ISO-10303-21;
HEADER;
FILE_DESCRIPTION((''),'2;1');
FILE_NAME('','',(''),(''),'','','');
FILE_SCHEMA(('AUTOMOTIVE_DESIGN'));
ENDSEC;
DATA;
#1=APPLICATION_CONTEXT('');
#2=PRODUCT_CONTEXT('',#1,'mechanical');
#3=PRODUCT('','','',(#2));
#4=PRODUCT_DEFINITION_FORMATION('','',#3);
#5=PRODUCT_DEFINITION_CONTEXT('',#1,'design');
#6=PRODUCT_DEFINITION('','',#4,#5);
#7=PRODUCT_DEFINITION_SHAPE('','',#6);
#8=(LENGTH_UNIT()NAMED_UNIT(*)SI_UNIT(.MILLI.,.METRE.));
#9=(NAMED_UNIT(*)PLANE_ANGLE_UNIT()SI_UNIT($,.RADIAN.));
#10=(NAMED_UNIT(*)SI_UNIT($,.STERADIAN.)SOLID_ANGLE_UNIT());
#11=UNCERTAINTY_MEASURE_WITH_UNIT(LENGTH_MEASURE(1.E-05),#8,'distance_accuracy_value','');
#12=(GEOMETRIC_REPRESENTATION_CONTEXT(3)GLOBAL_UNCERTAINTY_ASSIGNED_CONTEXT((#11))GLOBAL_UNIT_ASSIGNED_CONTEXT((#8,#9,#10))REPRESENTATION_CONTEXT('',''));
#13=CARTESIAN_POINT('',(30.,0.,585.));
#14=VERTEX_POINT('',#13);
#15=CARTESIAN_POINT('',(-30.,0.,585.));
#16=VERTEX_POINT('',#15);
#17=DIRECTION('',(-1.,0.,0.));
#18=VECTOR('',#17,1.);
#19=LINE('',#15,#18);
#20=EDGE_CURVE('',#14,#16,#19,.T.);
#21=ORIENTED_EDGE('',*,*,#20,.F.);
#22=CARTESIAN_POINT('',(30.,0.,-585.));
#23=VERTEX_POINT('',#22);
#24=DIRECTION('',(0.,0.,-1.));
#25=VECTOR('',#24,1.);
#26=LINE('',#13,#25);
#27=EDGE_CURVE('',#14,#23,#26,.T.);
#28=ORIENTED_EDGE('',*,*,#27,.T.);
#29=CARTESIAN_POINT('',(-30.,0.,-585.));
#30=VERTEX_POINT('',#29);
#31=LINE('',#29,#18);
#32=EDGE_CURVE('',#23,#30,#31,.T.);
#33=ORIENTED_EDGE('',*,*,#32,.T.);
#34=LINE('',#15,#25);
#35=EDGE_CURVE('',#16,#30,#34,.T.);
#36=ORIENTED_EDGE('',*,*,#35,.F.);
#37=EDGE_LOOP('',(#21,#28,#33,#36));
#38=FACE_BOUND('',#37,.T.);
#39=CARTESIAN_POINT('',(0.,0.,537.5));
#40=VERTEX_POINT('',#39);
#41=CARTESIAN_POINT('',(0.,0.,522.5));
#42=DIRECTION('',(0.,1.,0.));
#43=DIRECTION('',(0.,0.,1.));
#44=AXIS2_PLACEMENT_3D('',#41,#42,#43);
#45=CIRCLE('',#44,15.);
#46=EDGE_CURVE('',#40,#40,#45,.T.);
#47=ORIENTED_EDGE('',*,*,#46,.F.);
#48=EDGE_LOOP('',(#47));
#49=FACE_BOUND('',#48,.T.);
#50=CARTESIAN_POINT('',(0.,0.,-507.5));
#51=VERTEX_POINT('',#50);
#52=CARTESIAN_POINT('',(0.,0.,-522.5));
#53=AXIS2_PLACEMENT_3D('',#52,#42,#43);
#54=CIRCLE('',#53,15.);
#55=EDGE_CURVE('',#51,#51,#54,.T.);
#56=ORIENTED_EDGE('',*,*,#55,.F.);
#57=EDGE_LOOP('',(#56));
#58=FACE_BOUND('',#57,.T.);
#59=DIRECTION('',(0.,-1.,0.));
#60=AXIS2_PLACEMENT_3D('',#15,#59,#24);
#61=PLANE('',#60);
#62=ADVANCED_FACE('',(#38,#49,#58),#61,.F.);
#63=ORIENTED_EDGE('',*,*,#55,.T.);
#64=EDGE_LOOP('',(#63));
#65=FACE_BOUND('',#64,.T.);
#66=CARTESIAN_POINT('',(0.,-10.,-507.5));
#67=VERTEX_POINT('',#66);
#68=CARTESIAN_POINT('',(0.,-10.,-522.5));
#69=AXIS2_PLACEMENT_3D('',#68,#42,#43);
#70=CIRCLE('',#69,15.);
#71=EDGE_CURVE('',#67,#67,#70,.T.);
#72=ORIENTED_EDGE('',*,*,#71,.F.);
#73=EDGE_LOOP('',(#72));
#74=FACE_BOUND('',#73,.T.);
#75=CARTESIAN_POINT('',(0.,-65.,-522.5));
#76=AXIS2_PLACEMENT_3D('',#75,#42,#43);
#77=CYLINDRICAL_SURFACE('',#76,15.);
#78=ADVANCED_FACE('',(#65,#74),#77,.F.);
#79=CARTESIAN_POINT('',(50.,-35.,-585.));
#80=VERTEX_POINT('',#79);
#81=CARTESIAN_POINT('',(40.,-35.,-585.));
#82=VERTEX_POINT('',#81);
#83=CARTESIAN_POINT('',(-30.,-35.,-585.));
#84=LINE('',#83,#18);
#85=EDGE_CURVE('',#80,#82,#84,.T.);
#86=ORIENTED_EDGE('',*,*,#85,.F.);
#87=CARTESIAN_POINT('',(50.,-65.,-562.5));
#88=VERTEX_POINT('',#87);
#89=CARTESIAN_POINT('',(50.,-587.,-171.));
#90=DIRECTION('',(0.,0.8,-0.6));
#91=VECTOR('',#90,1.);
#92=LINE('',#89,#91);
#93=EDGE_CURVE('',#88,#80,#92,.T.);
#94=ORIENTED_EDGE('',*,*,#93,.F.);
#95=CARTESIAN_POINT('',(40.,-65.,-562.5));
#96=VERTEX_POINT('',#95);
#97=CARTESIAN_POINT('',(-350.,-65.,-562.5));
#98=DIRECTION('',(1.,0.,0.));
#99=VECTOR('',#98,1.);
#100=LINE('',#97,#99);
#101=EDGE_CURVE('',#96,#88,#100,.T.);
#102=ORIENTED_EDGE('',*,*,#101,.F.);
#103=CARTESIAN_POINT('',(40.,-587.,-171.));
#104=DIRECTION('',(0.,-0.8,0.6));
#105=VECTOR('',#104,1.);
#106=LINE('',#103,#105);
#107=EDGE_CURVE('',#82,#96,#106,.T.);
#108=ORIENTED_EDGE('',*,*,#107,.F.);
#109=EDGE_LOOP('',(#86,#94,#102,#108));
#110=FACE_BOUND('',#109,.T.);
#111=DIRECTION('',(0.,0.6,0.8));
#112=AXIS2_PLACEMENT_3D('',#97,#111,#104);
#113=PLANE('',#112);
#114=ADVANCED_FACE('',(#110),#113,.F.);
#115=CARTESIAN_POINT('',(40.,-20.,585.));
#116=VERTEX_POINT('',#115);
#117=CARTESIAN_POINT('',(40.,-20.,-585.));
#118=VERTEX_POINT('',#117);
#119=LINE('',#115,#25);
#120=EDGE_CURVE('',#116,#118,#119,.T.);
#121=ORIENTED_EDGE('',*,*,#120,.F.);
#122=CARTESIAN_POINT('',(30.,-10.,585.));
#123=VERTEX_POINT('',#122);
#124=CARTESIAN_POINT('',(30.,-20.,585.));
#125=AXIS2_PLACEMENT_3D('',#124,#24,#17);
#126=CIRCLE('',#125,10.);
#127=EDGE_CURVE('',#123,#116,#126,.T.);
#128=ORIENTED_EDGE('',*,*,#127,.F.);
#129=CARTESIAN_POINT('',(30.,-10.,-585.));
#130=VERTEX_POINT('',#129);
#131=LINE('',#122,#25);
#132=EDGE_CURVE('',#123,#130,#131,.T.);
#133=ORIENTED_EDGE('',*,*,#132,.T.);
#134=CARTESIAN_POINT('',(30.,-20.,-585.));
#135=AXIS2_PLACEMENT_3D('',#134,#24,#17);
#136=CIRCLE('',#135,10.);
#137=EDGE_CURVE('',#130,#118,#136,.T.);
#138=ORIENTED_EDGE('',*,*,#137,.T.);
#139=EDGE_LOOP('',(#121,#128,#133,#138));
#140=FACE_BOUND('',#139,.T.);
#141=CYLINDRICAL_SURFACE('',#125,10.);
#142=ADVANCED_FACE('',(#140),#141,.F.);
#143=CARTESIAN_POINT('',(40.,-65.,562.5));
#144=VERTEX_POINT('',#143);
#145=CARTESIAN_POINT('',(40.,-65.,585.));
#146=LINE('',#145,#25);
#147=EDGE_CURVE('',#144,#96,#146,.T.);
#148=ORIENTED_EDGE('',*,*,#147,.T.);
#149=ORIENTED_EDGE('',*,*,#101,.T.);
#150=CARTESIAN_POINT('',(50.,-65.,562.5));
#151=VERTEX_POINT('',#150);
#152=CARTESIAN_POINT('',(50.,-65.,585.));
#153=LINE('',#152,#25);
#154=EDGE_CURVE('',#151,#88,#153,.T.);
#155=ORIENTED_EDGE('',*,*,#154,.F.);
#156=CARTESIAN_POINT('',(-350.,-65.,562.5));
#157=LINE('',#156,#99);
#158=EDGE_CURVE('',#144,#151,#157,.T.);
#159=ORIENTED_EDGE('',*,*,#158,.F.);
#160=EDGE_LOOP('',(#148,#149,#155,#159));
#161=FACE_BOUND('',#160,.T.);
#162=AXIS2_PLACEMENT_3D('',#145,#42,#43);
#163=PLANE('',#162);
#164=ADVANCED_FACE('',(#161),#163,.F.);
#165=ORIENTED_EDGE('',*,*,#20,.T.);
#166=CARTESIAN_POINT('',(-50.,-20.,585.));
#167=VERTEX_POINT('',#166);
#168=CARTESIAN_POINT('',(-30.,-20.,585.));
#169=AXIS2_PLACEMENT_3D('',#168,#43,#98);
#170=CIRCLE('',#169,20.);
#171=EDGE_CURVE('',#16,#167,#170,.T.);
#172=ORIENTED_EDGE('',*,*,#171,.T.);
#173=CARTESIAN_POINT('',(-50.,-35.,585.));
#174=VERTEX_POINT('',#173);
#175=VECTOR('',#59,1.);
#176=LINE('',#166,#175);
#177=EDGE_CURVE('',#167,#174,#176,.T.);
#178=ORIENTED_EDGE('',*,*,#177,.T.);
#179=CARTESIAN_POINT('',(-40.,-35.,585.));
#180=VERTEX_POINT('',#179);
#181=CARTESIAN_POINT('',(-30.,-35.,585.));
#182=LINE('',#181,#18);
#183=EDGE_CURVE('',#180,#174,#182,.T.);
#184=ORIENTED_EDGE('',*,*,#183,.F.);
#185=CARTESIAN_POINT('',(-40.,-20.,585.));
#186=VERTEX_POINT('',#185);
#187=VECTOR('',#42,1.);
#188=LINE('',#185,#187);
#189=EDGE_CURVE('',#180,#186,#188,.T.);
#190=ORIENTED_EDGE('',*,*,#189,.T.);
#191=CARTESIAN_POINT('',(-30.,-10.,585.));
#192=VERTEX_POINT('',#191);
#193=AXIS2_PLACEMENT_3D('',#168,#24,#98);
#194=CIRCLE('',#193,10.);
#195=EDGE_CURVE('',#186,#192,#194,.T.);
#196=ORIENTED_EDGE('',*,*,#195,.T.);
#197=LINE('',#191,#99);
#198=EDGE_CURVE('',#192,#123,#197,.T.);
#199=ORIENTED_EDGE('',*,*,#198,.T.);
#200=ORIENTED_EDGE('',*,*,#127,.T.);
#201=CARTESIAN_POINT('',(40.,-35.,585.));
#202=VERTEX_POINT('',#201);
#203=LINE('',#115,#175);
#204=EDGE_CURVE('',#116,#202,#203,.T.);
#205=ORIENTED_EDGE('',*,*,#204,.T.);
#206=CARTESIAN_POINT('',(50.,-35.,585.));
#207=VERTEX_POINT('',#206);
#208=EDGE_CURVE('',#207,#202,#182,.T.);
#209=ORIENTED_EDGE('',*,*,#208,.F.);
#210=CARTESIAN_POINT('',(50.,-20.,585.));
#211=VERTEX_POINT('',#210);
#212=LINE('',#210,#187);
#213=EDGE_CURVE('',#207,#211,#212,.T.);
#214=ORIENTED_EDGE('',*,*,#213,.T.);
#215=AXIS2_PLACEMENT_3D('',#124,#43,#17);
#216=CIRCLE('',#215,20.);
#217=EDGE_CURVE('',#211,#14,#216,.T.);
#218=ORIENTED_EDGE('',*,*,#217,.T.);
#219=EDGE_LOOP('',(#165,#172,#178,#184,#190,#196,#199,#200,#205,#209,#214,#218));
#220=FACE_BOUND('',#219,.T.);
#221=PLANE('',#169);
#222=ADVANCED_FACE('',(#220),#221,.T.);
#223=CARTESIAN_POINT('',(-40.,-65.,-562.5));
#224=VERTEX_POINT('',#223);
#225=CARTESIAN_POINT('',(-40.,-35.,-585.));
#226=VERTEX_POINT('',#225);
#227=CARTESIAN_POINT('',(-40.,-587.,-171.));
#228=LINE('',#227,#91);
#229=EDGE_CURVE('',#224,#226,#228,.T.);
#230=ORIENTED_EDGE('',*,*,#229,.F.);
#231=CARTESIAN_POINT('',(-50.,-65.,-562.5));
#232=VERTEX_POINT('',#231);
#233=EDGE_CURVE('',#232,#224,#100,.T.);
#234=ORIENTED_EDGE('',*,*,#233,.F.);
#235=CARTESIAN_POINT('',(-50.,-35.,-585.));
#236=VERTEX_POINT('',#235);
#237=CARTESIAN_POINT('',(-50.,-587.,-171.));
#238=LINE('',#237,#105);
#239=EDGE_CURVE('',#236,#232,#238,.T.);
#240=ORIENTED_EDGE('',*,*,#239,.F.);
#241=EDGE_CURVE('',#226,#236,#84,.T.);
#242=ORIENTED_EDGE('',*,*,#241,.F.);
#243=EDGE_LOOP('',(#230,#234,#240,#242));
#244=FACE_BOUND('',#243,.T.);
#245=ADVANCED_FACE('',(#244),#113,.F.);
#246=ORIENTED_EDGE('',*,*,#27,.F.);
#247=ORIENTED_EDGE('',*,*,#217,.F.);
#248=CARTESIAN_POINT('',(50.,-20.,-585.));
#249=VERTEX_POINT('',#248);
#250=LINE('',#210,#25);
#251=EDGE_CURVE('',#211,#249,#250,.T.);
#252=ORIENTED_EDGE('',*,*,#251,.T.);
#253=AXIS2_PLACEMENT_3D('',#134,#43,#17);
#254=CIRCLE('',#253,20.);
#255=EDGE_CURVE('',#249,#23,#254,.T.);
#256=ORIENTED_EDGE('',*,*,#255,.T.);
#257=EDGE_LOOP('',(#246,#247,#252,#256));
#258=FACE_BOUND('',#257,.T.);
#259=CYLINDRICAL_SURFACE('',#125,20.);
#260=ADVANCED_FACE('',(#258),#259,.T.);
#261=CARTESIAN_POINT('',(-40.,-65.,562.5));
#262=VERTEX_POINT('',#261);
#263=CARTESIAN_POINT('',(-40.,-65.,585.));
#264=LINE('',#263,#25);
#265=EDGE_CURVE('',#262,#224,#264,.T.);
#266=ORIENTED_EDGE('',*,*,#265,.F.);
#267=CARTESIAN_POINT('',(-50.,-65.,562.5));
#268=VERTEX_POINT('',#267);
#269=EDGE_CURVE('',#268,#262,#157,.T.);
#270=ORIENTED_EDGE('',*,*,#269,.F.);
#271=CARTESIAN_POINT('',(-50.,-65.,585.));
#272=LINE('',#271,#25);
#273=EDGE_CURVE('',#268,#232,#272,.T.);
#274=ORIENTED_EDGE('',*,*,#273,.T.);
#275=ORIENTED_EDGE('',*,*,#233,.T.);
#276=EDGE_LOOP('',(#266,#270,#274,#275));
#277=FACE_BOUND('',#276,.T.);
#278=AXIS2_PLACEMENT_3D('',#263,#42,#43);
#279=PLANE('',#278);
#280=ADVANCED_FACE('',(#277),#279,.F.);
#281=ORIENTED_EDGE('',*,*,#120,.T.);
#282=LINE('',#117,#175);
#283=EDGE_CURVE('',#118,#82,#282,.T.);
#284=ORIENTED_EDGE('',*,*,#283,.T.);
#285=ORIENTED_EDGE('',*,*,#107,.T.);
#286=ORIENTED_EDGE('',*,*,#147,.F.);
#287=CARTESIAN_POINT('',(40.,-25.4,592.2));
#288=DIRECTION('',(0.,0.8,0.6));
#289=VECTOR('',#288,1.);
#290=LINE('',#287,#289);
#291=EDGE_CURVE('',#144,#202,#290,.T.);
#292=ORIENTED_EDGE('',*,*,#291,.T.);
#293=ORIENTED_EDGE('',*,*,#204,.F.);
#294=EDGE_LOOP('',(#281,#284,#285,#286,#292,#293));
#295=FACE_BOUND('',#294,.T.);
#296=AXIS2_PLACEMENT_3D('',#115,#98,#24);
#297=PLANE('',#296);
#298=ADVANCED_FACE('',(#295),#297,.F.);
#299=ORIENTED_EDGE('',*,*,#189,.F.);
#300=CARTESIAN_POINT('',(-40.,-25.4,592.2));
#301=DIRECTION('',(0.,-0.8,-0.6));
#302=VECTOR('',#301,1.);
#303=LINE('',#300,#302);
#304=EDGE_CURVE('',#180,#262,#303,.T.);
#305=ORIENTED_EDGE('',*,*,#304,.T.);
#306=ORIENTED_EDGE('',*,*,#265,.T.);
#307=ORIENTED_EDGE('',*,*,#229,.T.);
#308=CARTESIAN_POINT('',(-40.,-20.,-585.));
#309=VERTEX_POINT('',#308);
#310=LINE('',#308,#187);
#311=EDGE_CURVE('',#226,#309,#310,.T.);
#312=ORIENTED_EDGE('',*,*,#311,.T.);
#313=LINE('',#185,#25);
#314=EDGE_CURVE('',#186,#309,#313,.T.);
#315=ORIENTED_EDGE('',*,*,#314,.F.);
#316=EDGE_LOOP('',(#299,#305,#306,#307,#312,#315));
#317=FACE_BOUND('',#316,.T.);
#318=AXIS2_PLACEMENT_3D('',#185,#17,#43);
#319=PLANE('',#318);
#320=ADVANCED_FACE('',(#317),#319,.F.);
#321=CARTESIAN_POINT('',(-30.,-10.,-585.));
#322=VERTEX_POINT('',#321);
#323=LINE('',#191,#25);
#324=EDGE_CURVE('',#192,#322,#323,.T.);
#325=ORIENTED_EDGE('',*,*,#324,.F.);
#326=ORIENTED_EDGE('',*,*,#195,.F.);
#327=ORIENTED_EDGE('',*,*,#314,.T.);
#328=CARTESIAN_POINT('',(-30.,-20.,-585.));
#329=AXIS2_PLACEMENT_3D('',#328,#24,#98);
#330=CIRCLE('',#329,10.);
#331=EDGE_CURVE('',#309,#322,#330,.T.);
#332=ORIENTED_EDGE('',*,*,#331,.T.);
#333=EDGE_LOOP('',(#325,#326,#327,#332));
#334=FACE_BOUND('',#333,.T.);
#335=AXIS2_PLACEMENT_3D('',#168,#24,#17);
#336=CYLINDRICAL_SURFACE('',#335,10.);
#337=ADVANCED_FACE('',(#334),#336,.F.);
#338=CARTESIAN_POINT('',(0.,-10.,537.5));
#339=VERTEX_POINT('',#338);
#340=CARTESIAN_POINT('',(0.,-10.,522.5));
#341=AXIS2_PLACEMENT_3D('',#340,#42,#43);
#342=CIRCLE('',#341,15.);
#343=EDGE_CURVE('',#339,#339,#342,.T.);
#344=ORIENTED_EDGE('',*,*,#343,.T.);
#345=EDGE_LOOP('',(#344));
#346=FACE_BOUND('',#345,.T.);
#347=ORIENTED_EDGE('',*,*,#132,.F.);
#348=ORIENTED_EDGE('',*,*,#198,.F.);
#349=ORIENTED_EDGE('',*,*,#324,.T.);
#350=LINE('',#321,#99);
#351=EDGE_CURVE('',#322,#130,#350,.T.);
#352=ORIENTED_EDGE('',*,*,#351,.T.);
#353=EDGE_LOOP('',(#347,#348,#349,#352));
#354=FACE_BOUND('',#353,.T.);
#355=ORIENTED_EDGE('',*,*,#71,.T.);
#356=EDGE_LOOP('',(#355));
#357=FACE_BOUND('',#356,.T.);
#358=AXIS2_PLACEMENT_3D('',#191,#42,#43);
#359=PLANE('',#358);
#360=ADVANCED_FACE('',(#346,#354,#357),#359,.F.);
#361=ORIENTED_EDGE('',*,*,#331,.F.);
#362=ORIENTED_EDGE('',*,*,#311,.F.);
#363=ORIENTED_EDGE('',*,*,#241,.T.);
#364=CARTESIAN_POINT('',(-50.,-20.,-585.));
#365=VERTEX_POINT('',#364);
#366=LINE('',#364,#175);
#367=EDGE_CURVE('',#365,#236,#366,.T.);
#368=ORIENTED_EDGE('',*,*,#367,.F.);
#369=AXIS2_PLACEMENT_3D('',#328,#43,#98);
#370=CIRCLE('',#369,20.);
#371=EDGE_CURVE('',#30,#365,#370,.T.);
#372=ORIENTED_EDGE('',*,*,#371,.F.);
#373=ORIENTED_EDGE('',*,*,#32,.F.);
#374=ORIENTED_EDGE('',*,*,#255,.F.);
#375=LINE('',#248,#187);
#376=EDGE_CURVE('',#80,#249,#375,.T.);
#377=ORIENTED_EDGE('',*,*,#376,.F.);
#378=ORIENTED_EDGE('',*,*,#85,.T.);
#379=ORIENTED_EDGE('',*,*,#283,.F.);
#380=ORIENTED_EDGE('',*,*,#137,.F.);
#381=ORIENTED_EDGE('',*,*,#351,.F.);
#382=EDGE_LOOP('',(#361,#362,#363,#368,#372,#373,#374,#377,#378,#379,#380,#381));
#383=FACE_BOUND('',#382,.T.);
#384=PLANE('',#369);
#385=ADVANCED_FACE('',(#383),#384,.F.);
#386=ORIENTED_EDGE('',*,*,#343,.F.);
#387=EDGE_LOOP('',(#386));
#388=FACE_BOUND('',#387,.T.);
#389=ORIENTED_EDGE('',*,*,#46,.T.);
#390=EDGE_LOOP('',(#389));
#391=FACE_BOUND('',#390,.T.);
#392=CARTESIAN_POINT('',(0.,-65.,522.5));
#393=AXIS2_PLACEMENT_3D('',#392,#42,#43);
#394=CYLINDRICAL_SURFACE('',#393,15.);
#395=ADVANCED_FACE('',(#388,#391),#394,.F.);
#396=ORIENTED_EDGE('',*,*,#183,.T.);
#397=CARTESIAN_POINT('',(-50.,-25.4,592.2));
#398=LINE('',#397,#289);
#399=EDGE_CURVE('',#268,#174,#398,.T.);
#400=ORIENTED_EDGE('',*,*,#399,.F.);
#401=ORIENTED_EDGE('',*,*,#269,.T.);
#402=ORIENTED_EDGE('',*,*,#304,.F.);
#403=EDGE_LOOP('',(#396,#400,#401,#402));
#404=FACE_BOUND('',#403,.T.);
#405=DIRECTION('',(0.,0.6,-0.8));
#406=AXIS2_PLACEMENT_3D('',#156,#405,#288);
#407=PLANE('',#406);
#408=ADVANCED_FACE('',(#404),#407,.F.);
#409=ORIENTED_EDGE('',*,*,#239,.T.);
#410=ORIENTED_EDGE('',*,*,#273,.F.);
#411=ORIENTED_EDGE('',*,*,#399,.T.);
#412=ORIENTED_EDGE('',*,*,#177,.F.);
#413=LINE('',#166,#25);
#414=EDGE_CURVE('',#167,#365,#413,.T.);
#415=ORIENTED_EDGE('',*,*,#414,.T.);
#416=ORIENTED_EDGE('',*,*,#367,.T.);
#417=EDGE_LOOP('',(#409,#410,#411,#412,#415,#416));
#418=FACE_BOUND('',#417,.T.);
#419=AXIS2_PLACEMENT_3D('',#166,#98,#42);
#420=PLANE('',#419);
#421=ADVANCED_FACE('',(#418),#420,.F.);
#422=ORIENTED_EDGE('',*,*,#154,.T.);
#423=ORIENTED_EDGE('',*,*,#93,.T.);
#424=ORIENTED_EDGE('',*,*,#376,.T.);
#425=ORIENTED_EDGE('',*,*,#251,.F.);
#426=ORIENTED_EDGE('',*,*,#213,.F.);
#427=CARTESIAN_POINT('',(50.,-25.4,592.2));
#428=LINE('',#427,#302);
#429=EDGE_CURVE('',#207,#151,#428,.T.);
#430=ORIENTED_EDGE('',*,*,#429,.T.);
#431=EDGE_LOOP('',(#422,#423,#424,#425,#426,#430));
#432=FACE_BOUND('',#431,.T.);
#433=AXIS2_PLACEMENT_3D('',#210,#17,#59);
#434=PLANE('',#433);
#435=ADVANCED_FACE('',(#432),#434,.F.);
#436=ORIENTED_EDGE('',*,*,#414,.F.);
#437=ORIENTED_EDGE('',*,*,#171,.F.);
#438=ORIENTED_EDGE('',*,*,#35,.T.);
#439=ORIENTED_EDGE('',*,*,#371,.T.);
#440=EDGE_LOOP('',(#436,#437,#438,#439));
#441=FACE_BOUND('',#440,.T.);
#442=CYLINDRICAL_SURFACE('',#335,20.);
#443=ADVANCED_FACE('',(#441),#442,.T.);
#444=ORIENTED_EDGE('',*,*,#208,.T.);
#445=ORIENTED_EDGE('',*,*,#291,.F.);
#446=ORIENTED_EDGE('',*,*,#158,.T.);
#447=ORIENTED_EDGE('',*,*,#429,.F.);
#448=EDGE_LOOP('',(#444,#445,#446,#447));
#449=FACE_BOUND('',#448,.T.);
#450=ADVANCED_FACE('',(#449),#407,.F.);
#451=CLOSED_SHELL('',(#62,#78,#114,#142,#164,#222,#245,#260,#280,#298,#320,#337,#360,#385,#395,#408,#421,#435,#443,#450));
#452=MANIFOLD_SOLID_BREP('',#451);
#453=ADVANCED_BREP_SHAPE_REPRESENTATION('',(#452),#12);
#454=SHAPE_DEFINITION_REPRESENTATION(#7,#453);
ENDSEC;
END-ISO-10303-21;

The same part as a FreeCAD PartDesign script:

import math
import FreeCAD as App
import Part
import Sketcher
from FreeCAD import Vector


def add_polygon(sketch, points):
    """Adds a closed chain of lines whose ends are joined by coincident constraints."""
    first, n = sketch.GeometryCount, len(points)
    for a, b in zip(points, points[1:] + points[:1]):
        sketch.addGeometry(Part.LineSegment(App.Vector(*a, 0), App.Vector(*b, 0)), False)
    for i in range(n):
        sketch.addConstraint(Sketcher.Constraint("Coincident", first + i, 2, first + (i + 1) % n, 1))

doc = App.newDocument("Part")
body = doc.addObject("PartDesign::Body", "Body")

# Sketch on XY plane
sketch1 = body.newObject("Sketcher::SketchObject", "Sketch")
sketch1.AttachmentSupport = (doc.getObject("XY_Plane"), [""])
sketch1.MapMode = "FlatFace"
sketch1.addGeometry([
    Part.LineSegment(Vector(30, 0, 0), Vector(-30, 0, 0)),  # 0
    Part.ArcOfCircle(Part.Circle(Vector(-30, -20, 0), Vector(0, 0, 1), 20), math.radians(90), math.radians(180)),  # 1
    Part.LineSegment(Vector(-50, -20, 0), Vector(-50, -65, 0)),  # 2
    Part.LineSegment(Vector(-50, -65, 0), Vector(-40, -65, 0)),  # 3
    Part.LineSegment(Vector(-40, -65, 0), Vector(-40, -20, 0)),  # 4
    Part.ArcOfCircle(Part.Circle(Vector(-30, -20, 0), Vector(0, 0, 1), 10), math.radians(90), math.radians(180)),  # 5
    Part.LineSegment(Vector(-30, -10, 0), Vector(30, -10, 0)),  # 6
    Part.ArcOfCircle(Part.Circle(Vector(30, -20, 0), Vector(0, 0, 1), 10), math.radians(0), math.radians(90)),  # 7
    Part.LineSegment(Vector(40, -20, 0), Vector(40, -65, 0)),  # 8
    Part.LineSegment(Vector(40, -65, 0), Vector(50, -65, 0)),  # 9
    Part.LineSegment(Vector(50, -65, 0), Vector(50, -20, 0)),  # 10
    Part.ArcOfCircle(Part.Circle(Vector(30, -20, 0), Vector(0, 0, 1), 20), math.radians(0), math.radians(90)),  # 11
], False)
sketch1.addConstraint([
    Sketcher.Constraint("Tangent", 0, 2, 1, 1),
    Sketcher.Constraint("Tangent", 1, 2, 2, 1),
    Sketcher.Constraint("Coincident", 2, 2, 3, 1),
    Sketcher.Constraint("Coincident", 3, 2, 4, 1),
    Sketcher.Constraint("Tangent", 4, 2, 5, 2),
    Sketcher.Constraint("Tangent", 5, 1, 6, 1),
    Sketcher.Constraint("Tangent", 6, 2, 7, 2),
    Sketcher.Constraint("Tangent", 7, 1, 8, 1),
    Sketcher.Constraint("Coincident", 8, 2, 9, 1),
    Sketcher.Constraint("Coincident", 9, 2, 10, 1),
    Sketcher.Constraint("Tangent", 10, 2, 11, 1),
    Sketcher.Constraint("Tangent", 11, 2, 0, 1),
    Sketcher.Constraint("Horizontal", 0),
    Sketcher.Constraint("Vertical", 2),
    Sketcher.Constraint("Horizontal", 3),
    Sketcher.Constraint("Vertical", 4),
    Sketcher.Constraint("Horizontal", 6),
    Sketcher.Constraint("Vertical", 8),
    Sketcher.Constraint("Horizontal", 9),
    Sketcher.Constraint("Vertical", 10),
    Sketcher.Constraint("Coincident", 5, 3, 1, 3),
    Sketcher.Constraint("Coincident", 11, 3, 7, 3),
    Sketcher.Constraint("Equal", 5, 7),
    Sketcher.Constraint("Symmetric", 0, 2, 11, 2, -1, 1),
    Sketcher.Constraint("Horizontal", 3, 2, 8, 2),
    Sketcher.Constraint("Radius", 1, 20.0),
    Sketcher.Constraint("Radius", 5, 10.0),
    Sketcher.Constraint("DistanceX", 0, 2, 0, 1, 60.0),
    Sketcher.Constraint("DistanceY", 2, 2, 2, 1, 45.0),
])
pad1 = body.newObject("PartDesign::Pad", "Pad")
pad1.Profile = sketch1
pad1.Length = 1170
pad1.Midplane = True

# Sketch on YZ plane
sketch2 = body.newObject("Sketcher::SketchObject", "Sketch001")
sketch2.AttachmentSupport = (doc.getObject("YZ_Plane"), [""])
sketch2.MapMode = "FlatFace"
add_polygon(sketch2, [(-35, 585), (-65, 585), (-65, 562)])  # lines 0-2
add_polygon(sketch2, [(-35, -585), (-65, -562), (-65, -585)])  # lines 3-5
sketch2.addConstraint([
    Sketcher.Constraint("Horizontal", 0),
    Sketcher.Constraint("Vertical", 1),
    Sketcher.Constraint("Vertical", 4),
    Sketcher.Constraint("Horizontal", 5),
    Sketcher.Constraint("Symmetric", 1, 2, 3, 2, -1),
    Sketcher.Constraint("Symmetric", 2, 2, 5, 2, -1),
    Sketcher.Constraint("DistanceX", 0, 2, 0, 1, 30.0),
    Sketcher.Constraint("DistanceY", 1, 2, 1, 1, 22.5),
    Sketcher.Constraint("DistanceX", 0, 2, -1, 1, 65.0),
    Sketcher.Constraint("DistanceY", -1, 1, 0, 2, 585.0),
])
pocket1 = body.newObject("PartDesign::Pocket", "Pocket")
pocket1.Profile = sketch2
pocket1.Length = 700
pocket1.Midplane = True

# Sketch on XZ plane
sketch3 = body.newObject("Sketcher::SketchObject", "Sketch002")
sketch3.AttachmentSupport = (doc.getObject("XZ_Plane"), [""])
sketch3.MapMode = "FlatFace"
sketch3.addGeometry([
    Part.Circle(Vector(0, -522, 0), Vector(0, 0, 1), 15),
    Part.Circle(Vector(0, 522, 0), Vector(0, 0, 1), 15),
], False)
sketch3.addConstraint([
    Sketcher.Constraint("Equal", 0, 1),
    Sketcher.Constraint("Symmetric", 0, 3, 1, 3, -1, 1),
    Sketcher.Constraint("PointOnObject", 0, 3, -2),
    Sketcher.Constraint("Diameter", 0, 30.0),
    Sketcher.Constraint("DistanceY", 0, 3, 1, 3, 1045.0),
])
pocket2 = body.newObject("PartDesign::Pocket", "Pocket001")
pocket2.Profile = sketch3
pocket2.Type = "ThroughAll"
pocket2.Reversed = True

doc.recompute()
